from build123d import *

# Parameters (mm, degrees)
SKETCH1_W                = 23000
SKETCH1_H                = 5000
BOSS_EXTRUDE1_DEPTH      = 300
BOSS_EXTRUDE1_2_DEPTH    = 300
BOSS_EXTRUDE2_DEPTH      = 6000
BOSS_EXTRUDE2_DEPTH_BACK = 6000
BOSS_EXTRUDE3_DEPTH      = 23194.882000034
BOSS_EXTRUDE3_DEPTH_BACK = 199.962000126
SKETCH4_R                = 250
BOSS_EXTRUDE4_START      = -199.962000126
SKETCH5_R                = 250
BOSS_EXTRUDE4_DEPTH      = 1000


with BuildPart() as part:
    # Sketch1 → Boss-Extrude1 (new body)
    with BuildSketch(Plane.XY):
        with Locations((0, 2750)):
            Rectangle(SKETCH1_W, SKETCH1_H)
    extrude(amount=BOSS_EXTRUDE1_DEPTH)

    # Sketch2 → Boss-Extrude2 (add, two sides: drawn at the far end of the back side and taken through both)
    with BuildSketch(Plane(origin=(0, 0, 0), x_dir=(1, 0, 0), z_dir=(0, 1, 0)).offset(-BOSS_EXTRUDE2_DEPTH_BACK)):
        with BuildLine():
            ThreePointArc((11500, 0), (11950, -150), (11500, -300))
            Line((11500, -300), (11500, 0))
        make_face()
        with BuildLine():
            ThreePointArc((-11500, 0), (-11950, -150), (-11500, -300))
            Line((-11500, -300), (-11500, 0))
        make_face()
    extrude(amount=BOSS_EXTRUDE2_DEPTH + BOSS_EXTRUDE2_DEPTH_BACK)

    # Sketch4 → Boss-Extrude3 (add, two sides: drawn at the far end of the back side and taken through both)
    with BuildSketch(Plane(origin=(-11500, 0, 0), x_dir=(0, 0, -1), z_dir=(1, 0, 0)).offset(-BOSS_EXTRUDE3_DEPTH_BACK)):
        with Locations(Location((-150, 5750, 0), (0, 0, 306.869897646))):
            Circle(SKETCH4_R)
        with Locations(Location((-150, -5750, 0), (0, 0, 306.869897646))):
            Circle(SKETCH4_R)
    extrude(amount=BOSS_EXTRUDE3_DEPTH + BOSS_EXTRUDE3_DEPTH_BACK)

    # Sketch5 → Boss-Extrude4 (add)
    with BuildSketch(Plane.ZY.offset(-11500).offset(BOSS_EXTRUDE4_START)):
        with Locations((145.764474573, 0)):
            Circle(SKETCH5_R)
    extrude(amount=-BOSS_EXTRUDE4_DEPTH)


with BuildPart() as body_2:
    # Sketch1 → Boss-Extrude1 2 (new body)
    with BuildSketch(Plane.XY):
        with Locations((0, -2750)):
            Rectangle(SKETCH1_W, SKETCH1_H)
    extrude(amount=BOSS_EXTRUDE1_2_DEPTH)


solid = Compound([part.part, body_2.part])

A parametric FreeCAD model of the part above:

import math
import FreeCAD as App
import Part
import Sketcher

V = App.Vector
Q = App.Units.Quantity

doc = App.newDocument("Part")
body = doc.addObject("PartDesign::Body", "Body")

# Sketch on XY plane
sketch1 = doc.addObject("Sketcher::SketchObject", "Sketch")
body.addObject(sketch1)
sketch1.AttachmentSupport = (doc.XY_Plane, [""])
sketch1.MapMode = "FlatFace"
sketch1.addGeometry(Part.LineSegment(V(-11500, 5250, 0), V(-11500, 250, 0)), False)
sketch1.addGeometry(Part.LineSegment(V(-11500, 250, 0), V(11500, 250, 0)), False)
sketch1.addGeometry(Part.LineSegment(V(11500, 250, 0), V(11500, 5250, 0)), False)
sketch1.addGeometry(Part.LineSegment(V(11500, 5250, 0), V(-11500, 5250, 0)), False)
sketch1.addConstraint(Sketcher.Constraint("Coincident", 0, 2, 1, 1))
sketch1.addConstraint(Sketcher.Constraint("Coincident", 1, 2, 2, 1))
sketch1.addConstraint(Sketcher.Constraint("Coincident", 2, 2, 3, 1))
sketch1.addConstraint(Sketcher.Constraint("Coincident", 3, 2, 0, 1))
sketch1.addConstraint(Sketcher.Constraint("Vertical", 0))
sketch1.addConstraint(Sketcher.Constraint("Horizontal", 1))
sketch1.addConstraint(Sketcher.Constraint("Vertical", 2))
sketch1.addConstraint(Sketcher.Constraint("Horizontal", 3))
sketch1.addConstraint(Sketcher.Constraint("DistanceX", 1, 1, 1, 2, Q("23000 mm")))
sketch1.addConstraint(Sketcher.Constraint("DistanceY", 0, 2, 0, 1, Q("5000 mm")))
sketch1.addConstraint(Sketcher.Constraint("DistanceX", 0, 2, -1, 1, Q("11500 mm")))
sketch1.addConstraint(Sketcher.Constraint("DistanceY", -1, 1, 0, 2, Q("250 mm")))
pad1 = doc.addObject("PartDesign::Pad", "Pad")
body.addObject(pad1)
pad1.Profile = sketch1
pad1.Length = 300

# Sketch on XZ plane
sketch2 = doc.addObject("Sketcher::SketchObject", "Sketch001")
body.addObject(sketch2)
sketch2.AttachmentSupport = (doc.XZ_Plane, [""])
sketch2.MapMode = "FlatFace"
sketch2.addGeometry(Part.ArcOfCircle(Part.Circle(V(11700, 150, 0), V(0, 0, 1), 250), math.radians(-143), math.radians(143)), False)
sketch2.addGeometry(Part.LineSegment(V(11500, 0, 0), V(11500, 300, 0)), False)
sketch2.addGeometry(Part.ArcOfCircle(Part.Circle(V(-11700, 150, 0), V(0, 0, 1), 250), math.radians(37), math.radians(323)), False)
sketch2.addGeometry(Part.LineSegment(V(-11500, 300, 0), V(-11500, 0, 0)), False)
sketch2.addConstraint(Sketcher.Constraint("Coincident", 0, 1, 1, 1))
sketch2.addConstraint(Sketcher.Constraint("Coincident", 1, 2, 0, 2))
sketch2.addConstraint(Sketcher.Constraint("Coincident", 2, 1, 3, 1))
sketch2.addConstraint(Sketcher.Constraint("Coincident", 3, 2, 2, 2))
sketch2.addConstraint(Sketcher.Constraint("Vertical", 1))
sketch2.addConstraint(Sketcher.Constraint("Vertical", 3))
sketch2.addConstraint(Sketcher.Constraint("Equal", 0, 2))
sketch2.addConstraint(Sketcher.Constraint("Symmetric", 0, 1, 3, 2, -1, 1))
sketch2.addConstraint(Sketcher.Constraint("Symmetric", 0, 3, 2, 3, -2))
sketch2.addConstraint(Sketcher.Constraint("Radius", 0, Q("250 mm")))
sketch2.addConstraint(Sketcher.Constraint("DistanceY", 1, 1, 1, 2, Q("300 mm")))
sketch2.addConstraint(Sketcher.Constraint("DistanceX", -1, 1, 0, 3, Q("11700 mm")))
pad2 = doc.addObject("PartDesign::Pad", "Pad001")
body.addObject(pad2)
pad2.Profile = sketch2
pad2.Type = "TwoLengths"
pad2.Length = 6000
pad2.Length2 = 6000
pad2.Reversed = True

# Sketch on YZ plane
sketch3 = doc.addObject("Sketcher::SketchObject", "Sketch002")
body.addObject(sketch3)
sketch3.AttachmentSupport = (doc.YZ_Plane, [""])
sketch3.MapMode = "FlatFace"
sketch3.AttachmentOffset = App.Placement(V(0, 0, -11500), App.Rotation())
sketch3.addGeometry(Part.Circle(V(5750, 150, 0), V(0, 0, 1), 250), False)
sketch3.addGeometry(Part.Circle(V(-5750, 150, 0), V(0, 0, 1), 250), False)
sketch3.addConstraint(Sketcher.Constraint("Equal", 0, 1))
sketch3.addConstraint(Sketcher.Constraint("Symmetric", 0, 3, 1, 3, -2))
sketch3.addConstraint(Sketcher.Constraint("Diameter", 0, Q("500 mm")))
sketch3.addConstraint(Sketcher.Constraint("DistanceX", -1, 1, 0, 3, Q("5750 mm")))
sketch3.addConstraint(Sketcher.Constraint("DistanceY", -1, 1, 0, 3, Q("150 mm")))
pad3 = doc.addObject("PartDesign::Pad", "Pad002")
body.addObject(pad3)
pad3.Profile = sketch3
pad3.Type = "TwoLengths"
pad3.Length = 23194.882
pad3.Length2 = 199.962

# Sketch on YZ plane
sketch4 = doc.addObject("Sketcher::SketchObject", "Sketch003")
body.addObject(sketch4)
sketch4.AttachmentSupport = (doc.YZ_Plane, [""])
sketch4.MapMode = "FlatFace"
sketch4.AttachmentOffset = App.Placement(V(0, 0, 11699.962), App.Rotation())
sketch4.addGeometry(Part.Circle(V(0, 146, 0), V(0, 0, 1), 250), False)
sketch4.addConstraint(Sketcher.Constraint("PointOnObject", 0, 3, -2))
sketch4.addConstraint(Sketcher.Constraint("Diameter", 0, Q("500 mm")))
sketch4.addConstraint(Sketcher.Constraint("DistanceY", -1, 1, 0, 3, Q("145.764475 mm")))
pad4 = doc.addObject("PartDesign::Pad", "Pad003")
body.addObject(pad4)
pad4.Profile = sketch4
pad4.Length = 1000
body2 = doc.addObject("PartDesign::Body", "Body001")

# Sketch on XY plane
sketch5 = doc.addObject("Sketcher::SketchObject", "Sketch004")
body2.addObject(sketch5)
sketch5.AttachmentSupport = (doc.getObject("XY_Plane001"), [""])
sketch5.MapMode = "FlatFace"
sketch5.addGeometry(Part.LineSegment(V(-11500, -250, 0), V(-11500, -5250, 0)), False)
sketch5.addGeometry(Part.LineSegment(V(-11500, -5250, 0), V(11500, -5250, 0)), False)
sketch5.addGeometry(Part.LineSegment(V(11500, -5250, 0), V(11500, -250, 0)), False)
sketch5.addGeometry(Part.LineSegment(V(11500, -250, 0), V(-11500, -250, 0)), False)
sketch5.addConstraint(Sketcher.Constraint("Coincident", 0, 2, 1, 1))
sketch5.addConstraint(Sketcher.Constraint("Coincident", 1, 2, 2, 1))
sketch5.addConstraint(Sketcher.Constraint("Coincident", 2, 2, 3, 1))
sketch5.addConstraint(Sketcher.Constraint("Coincident", 3, 2, 0, 1))
sketch5.addConstraint(Sketcher.Constraint("Vertical", 0))
sketch5.addConstraint(Sketcher.Constraint("Horizontal", 1))
sketch5.addConstraint(Sketcher.Constraint("Vertical", 2))
sketch5.addConstraint(Sketcher.Constraint("Horizontal", 3))
sketch5.addConstraint(Sketcher.Constraint("DistanceX", 1, 1, 1, 2, Q("23000 mm")))
sketch5.addConstraint(Sketcher.Constraint("DistanceY", 0, 2, 0, 1, Q("5000 mm")))
sketch5.addConstraint(Sketcher.Constraint("DistanceX", 0, 2, -1, 1, Q("11500 mm")))
sketch5.addConstraint(Sketcher.Constraint("DistanceY", 0, 2, -1, 1, Q("5250 mm")))
pad5 = doc.addObject("PartDesign::Pad", "Pad004")
body2.addObject(pad5)
pad5.Profile = sketch5
pad5.Length = 300

doc.recompute()
